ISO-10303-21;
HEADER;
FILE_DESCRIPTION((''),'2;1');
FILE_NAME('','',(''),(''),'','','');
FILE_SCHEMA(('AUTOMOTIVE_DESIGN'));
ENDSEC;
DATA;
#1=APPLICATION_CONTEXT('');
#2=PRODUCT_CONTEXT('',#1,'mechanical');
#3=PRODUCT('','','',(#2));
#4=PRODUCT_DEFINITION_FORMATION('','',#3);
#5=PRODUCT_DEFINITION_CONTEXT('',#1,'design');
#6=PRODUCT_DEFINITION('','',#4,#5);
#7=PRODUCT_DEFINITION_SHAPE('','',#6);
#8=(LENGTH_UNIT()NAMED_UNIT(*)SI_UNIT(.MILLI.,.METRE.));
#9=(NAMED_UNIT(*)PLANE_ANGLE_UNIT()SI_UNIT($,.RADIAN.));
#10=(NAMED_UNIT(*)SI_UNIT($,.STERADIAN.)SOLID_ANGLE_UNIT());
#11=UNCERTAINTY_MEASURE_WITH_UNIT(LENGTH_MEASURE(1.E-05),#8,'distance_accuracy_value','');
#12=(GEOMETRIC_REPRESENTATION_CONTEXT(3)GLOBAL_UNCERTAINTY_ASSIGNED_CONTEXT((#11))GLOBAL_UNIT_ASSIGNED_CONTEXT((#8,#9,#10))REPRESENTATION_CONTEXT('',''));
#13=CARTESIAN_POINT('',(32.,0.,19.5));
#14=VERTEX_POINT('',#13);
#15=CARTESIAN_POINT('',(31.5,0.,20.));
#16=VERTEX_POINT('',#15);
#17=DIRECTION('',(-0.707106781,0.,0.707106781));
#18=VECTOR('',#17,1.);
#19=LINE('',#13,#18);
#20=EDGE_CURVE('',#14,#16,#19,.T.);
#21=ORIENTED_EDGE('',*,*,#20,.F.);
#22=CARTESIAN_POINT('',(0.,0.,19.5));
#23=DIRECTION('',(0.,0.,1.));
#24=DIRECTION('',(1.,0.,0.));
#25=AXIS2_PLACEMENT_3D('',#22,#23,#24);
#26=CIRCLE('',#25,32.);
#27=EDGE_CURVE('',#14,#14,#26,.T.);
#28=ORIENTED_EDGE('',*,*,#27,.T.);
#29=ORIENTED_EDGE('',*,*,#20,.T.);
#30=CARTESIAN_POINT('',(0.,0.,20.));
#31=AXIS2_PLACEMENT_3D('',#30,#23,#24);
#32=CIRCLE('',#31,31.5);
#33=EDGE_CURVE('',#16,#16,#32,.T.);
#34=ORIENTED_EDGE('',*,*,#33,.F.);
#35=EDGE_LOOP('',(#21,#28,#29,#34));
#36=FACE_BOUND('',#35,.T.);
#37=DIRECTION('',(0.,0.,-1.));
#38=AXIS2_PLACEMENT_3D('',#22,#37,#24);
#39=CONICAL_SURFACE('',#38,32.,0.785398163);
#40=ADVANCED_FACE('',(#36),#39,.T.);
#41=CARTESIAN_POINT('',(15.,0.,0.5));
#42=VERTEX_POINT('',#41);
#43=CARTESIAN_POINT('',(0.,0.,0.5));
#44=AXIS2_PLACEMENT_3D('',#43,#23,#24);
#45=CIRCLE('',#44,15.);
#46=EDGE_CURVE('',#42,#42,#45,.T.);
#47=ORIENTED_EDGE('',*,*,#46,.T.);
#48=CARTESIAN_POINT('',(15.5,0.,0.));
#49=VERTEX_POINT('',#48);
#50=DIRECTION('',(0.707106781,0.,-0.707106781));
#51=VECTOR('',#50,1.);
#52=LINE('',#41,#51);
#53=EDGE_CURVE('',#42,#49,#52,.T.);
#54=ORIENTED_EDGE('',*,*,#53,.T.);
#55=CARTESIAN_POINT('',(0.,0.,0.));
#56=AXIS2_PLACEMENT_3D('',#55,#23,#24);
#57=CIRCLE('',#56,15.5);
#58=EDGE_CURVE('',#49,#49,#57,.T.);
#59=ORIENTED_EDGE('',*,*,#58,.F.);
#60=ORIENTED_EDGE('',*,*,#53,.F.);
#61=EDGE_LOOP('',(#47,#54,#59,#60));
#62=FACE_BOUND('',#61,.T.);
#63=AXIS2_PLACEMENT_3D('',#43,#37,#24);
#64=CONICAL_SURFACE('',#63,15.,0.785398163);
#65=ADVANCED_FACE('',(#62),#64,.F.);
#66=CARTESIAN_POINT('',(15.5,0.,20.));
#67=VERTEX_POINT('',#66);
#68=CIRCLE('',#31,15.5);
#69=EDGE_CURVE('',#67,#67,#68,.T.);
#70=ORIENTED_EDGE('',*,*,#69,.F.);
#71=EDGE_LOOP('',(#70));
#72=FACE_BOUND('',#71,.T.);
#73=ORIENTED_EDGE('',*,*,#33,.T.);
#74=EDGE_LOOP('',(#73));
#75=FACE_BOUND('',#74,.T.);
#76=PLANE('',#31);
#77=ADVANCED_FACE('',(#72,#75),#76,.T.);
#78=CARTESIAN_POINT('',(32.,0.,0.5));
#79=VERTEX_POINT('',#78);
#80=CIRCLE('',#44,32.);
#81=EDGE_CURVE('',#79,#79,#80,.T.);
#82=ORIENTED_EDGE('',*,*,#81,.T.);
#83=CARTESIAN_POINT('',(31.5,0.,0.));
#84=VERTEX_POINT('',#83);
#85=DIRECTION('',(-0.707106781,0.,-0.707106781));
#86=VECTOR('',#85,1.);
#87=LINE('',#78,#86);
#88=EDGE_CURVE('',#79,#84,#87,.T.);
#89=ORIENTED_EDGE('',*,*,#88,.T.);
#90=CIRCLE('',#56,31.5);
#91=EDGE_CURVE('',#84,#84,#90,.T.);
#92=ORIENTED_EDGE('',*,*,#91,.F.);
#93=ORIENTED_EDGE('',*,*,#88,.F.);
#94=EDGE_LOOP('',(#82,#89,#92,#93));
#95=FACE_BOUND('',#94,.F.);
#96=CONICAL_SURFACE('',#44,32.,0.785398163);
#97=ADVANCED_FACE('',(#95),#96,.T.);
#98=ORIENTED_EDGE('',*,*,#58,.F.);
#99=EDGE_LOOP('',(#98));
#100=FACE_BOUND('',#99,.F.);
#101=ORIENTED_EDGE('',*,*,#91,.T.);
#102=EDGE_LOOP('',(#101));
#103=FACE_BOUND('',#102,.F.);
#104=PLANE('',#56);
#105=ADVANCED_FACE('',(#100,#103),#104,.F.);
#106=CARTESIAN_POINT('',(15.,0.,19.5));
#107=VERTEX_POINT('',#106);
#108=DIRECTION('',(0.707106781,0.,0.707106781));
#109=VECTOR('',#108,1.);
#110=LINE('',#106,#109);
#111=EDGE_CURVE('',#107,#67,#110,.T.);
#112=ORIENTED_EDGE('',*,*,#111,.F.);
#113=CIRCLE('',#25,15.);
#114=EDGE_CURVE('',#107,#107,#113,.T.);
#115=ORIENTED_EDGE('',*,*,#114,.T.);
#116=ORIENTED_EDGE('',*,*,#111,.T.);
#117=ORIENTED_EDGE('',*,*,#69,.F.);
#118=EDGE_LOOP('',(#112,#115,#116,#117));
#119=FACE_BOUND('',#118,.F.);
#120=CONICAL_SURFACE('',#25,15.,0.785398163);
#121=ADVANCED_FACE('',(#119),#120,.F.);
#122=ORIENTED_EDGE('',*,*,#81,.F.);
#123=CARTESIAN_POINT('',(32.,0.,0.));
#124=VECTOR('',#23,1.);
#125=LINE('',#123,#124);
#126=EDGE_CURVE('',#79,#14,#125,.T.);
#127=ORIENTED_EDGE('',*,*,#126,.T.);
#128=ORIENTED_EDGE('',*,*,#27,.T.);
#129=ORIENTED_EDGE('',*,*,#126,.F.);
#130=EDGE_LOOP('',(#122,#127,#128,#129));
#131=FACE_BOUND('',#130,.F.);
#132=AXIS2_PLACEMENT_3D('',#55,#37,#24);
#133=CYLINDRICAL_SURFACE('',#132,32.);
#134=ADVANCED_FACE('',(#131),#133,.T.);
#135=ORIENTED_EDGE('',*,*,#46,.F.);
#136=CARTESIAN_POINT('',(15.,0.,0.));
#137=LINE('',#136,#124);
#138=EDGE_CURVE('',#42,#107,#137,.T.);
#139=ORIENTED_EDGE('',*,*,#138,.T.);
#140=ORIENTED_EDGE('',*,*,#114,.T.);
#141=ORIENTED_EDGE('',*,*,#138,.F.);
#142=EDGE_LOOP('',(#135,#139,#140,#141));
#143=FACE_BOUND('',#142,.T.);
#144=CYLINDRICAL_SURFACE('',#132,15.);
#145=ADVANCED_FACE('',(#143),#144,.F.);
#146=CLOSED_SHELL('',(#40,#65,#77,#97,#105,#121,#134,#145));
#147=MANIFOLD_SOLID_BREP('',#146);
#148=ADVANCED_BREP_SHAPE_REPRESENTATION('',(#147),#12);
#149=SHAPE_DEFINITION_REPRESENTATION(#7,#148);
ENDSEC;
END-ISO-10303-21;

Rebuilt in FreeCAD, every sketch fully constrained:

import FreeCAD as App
import Part
import Sketcher
Q = App.Units.Quantity


def edges_at(feature, points):
    """Names of the edges that pass closest to the given points."""
    edges = feature.Shape.Edges
    near = lambda p: min(range(len(edges)), key=lambda i: edges[i].distToShape(Part.Vertex(*p))[0])
    return sorted({f"Edge{near(p) + 1}" for p in points})

doc = App.newDocument("Part")
body = doc.addObject("PartDesign::Body", "Body")

sketch1 = body.newObject("Sketcher::SketchObject", "Sketch")
sketch1.AttachmentSupport = (doc.getObject("XY_Plane"), [""])
sketch1.MapMode = "FlatFace"
sketch1.addGeometry([
    Part.Circle(App.Vector(0, 0, 0), App.Vector(0, 0, 1), 32),
    Part.Circle(App.Vector(0, 0, 0), App.Vector(0, 0, 1), 15),
], False)
sketch1.addConstraint([
    Sketcher.Constraint("Coincident", 0, 3, -1, 1),
    Sketcher.Constraint("Coincident", 1, 3, -1, 1),
    Sketcher.Constraint("Diameter", 0, Q("64 mm")),
    Sketcher.Constraint("Diameter", 1, Q("30 mm")),
])
pad1 = body.newObject("PartDesign::Pad", "Pad")
pad1.Profile = sketch1
pad1.Length = 20
doc.recompute()

chamfer = body.newObject("PartDesign::Chamfer", "Chamfer")
chamfer.Base = (pad1, edges_at(pad1, [
    (-15, 0, 20),
    (-15, 0, 0),
    (-32, 0, 20),
    (-32, 0, 0),
]))
chamfer.Size = 0.5

doc.recompute()
